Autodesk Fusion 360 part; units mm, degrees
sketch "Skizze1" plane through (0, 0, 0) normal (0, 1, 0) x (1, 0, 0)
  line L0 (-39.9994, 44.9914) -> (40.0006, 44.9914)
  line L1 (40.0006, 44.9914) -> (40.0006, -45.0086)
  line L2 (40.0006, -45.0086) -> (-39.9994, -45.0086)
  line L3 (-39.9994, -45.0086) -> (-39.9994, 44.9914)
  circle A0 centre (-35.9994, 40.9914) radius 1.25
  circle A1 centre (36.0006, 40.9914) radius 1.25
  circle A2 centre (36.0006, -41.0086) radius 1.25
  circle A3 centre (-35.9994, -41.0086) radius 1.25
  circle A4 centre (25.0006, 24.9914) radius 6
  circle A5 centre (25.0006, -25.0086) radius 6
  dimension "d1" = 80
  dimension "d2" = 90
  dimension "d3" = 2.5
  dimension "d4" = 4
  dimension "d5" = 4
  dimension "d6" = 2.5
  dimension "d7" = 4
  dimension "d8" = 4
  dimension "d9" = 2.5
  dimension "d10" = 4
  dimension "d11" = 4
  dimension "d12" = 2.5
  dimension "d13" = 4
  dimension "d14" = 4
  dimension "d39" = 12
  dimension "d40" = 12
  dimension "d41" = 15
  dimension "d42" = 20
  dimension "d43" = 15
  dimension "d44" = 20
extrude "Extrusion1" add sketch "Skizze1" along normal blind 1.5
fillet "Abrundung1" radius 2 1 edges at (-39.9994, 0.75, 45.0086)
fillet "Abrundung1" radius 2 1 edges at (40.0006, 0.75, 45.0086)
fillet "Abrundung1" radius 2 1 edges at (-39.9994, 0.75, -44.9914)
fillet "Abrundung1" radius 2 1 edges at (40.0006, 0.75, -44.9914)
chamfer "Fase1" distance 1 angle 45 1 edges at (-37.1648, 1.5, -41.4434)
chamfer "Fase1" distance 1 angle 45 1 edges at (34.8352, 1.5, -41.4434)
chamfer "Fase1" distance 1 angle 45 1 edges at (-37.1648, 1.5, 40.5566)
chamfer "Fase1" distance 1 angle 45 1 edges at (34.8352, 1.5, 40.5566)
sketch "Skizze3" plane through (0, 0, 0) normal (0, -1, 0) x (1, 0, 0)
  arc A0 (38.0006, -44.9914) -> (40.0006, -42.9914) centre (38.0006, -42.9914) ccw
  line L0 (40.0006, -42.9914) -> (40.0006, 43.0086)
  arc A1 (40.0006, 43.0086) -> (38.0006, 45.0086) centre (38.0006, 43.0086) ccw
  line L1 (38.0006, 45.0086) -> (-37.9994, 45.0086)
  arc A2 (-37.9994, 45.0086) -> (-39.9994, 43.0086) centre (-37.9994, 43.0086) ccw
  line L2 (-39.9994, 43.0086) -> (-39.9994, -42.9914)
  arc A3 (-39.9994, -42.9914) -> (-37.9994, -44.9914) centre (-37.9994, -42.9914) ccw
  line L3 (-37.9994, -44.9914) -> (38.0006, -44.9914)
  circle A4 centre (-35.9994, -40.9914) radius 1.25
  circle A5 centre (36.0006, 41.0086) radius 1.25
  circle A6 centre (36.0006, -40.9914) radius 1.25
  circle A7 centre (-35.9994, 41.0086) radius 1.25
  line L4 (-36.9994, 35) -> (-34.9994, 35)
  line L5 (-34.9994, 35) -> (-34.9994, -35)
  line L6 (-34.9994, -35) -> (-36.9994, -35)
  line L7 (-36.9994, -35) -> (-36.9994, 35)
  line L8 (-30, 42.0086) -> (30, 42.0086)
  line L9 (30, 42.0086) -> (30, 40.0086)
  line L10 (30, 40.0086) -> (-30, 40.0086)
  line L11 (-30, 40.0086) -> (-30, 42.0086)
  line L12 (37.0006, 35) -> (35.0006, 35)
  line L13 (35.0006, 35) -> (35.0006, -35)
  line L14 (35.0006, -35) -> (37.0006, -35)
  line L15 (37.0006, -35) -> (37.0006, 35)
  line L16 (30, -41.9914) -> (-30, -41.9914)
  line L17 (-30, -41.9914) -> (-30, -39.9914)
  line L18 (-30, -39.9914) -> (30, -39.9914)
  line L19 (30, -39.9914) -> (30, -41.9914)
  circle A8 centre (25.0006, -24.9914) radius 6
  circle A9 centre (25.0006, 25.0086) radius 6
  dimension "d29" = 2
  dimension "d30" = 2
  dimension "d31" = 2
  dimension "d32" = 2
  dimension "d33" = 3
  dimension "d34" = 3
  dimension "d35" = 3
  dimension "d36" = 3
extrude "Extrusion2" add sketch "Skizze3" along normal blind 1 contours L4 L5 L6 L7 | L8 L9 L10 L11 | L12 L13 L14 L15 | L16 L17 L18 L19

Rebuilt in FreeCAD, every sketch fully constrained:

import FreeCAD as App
import Part
import Sketcher

V = App.Vector


def edges_at(feature, points):
    """Names of the edges that pass closest to the given points."""
    edges = feature.Shape.Edges
    near = lambda p: min(range(len(edges)), key=lambda i: edges[i].distToShape(Part.Vertex(*p))[0])
    return sorted({f"Edge{near(p) + 1}" for p in points})


def add_polygon(sketch, points):
    """Adds a closed chain of lines whose ends are joined by coincident constraints."""
    first, n = sketch.GeometryCount, len(points)
    for a, b in zip(points, points[1:] + points[:1]):
        sketch.addGeometry(Part.LineSegment(App.Vector(*a, 0), App.Vector(*b, 0)), False)
    for i in range(n):
        sketch.addConstraint(Sketcher.Constraint("Coincident", first + i, 2, first + (i + 1) % n, 1))

doc = App.newDocument("Part")
body = doc.addObject("PartDesign::Body", "Body")

# Sketch on XZ plane
sketch1 = doc.addObject("Sketcher::SketchObject", "Sketch")
body.addObject(sketch1)
sketch1.AttachmentSupport = (doc.XZ_Plane, [""])
sketch1.MapMode = "FlatFace"
add_polygon(sketch1, [(40, -45), (-40, -45), (-40, 45), (40, 45)])  # lines 0-3
sketch1.addGeometry(Part.Circle(V(-36, 41, 0), V(0, 0, 1), 1.2), False)  # 4
sketch1.addGeometry(Part.Circle(V(36, 41, 0), V(0, 0, 1), 1.2), False)  # 5
sketch1.addGeometry(Part.Circle(V(25, 25, 0), V(0, 0, 1), 6), False)  # 6
sketch1.addGeometry(Part.Circle(V(-36, -41, 0), V(0, 0, 1), 1.2), False)  # 7
sketch1.addGeometry(Part.Circle(V(25, -25, 0), V(0, 0, 1), 6), False)  # 8
sketch1.addGeometry(Part.Circle(V(36, -41, 0), V(0, 0, 1), 1.2), False)  # 9
sketch1.addConstraint(Sketcher.Constraint("Horizontal", 0))
sketch1.addConstraint(Sketcher.Constraint("Vertical", 1))
sketch1.addConstraint(Sketcher.Constraint("Horizontal", 2))
sketch1.addConstraint(Sketcher.Constraint("Vertical", 3))
sketch1.addConstraint(Sketcher.Constraint("Equal", 4, 5))
sketch1.addConstraint(Sketcher.Constraint("Equal", 5, 7))
sketch1.addConstraint(Sketcher.Constraint("Equal", 6, 8))
sketch1.addConstraint(Sketcher.Constraint("Equal", 7, 9))
sketch1.addConstraint(Sketcher.Constraint("Horizontal", 4, 3, 5, 3))
sketch1.addConstraint(Sketcher.Constraint("Horizontal", 7, 3, 9, 3))
sketch1.addConstraint(Sketcher.Constraint("Vertical", 4, 3, 7, 3))
sketch1.addConstraint(Sketcher.Constraint("Vertical", 6, 3, 8, 3))
sketch1.addConstraint(Sketcher.Constraint("Vertical", 5, 3, 9, 3))
sketch1.addConstraint(Sketcher.Constraint("Diameter", 6, 12.0))
sketch1.addConstraint(Sketcher.Constraint("Diameter", 4, 2.5))
sketch1.addConstraint(Sketcher.Constraint("DistanceX", 0, 2, 0, 1, 80.0))
sketch1.addConstraint(Sketcher.Constraint("DistanceY", 1, 1, 1, 2, 90.0))
sketch1.addConstraint(Sketcher.Constraint("DistanceX", 0, 2, 7, 3, 4.0))
sketch1.addConstraint(Sketcher.Constraint("DistanceY", 0, 2, 7, 3, 4.0))
sketch1.addConstraint(Sketcher.Constraint("DistanceY", 0, 2, 8, 3, 20.0))
sketch1.addConstraint(Sketcher.Constraint("DistanceY", 4, 3, 1, 2, 4.0))
sketch1.addConstraint(Sketcher.Constraint("DistanceY", 6, 3, 1, 2, 20.0))
sketch1.addConstraint(Sketcher.Constraint("DistanceX", 5, 3, 2, 2, 4.0))
sketch1.addConstraint(Sketcher.Constraint("DistanceX", 6, 3, 2, 2, 15.0))
sketch1.addConstraint(Sketcher.Constraint("DistanceX", 4, 3, -1, 1, 35.9994))
sketch1.addConstraint(Sketcher.Constraint("DistanceY", -1, 1, 4, 3, 41.0086))
pad1 = doc.addObject("PartDesign::Pad", "Pad")
body.addObject(pad1)
pad1.Profile = sketch1
pad1.Length = 1.5
pad1.Reversed = True
doc.recompute()

fillet = doc.addObject("PartDesign::Fillet", "Fillet")
body.addObject(fillet)
fillet.Base = (pad1, edges_at(pad1, [(-39.999, 0.75, 45.009)]))
fillet.Radius = 2
doc.recompute()

fillet2 = doc.addObject("PartDesign::Fillet", "Fillet001")
body.addObject(fillet2)
fillet2.Base = (fillet, edges_at(fillet, [(40.001, 0.75, 45.009)]))
fillet2.Radius = 2
doc.recompute()

fillet3 = doc.addObject("PartDesign::Fillet", "Fillet002")
body.addObject(fillet3)
fillet3.Base = (fillet2, edges_at(fillet2, [(-39.999, 0.75, -44.991)]))
fillet3.Radius = 2
doc.recompute()

fillet4 = doc.addObject("PartDesign::Fillet", "Fillet003")
body.addObject(fillet4)
fillet4.Base = (fillet3, edges_at(fillet3, [(40.001, 0.75, -44.991)]))
fillet4.Radius = 2
doc.recompute()

chamfer = doc.addObject("PartDesign::Chamfer", "Chamfer")
body.addObject(chamfer)
chamfer.Base = (fillet4, edges_at(fillet4, [(-37.165, 1.5, -41.443)]))
chamfer.Size = 1
doc.recompute()

chamfer2 = doc.addObject("PartDesign::Chamfer", "Chamfer001")
body.addObject(chamfer2)
chamfer2.Base = (chamfer, edges_at(chamfer, [(34.835, 1.5, -41.443)]))
chamfer2.Size = 1
doc.recompute()

chamfer3 = doc.addObject("PartDesign::Chamfer", "Chamfer002")
body.addObject(chamfer3)
chamfer3.Base = (chamfer2, edges_at(chamfer2, [(-37.165, 1.5, 40.557)]))
chamfer3.Size = 1
doc.recompute()

chamfer4 = doc.addObject("PartDesign::Chamfer", "Chamfer003")
body.addObject(chamfer4)
chamfer4.Base = (chamfer3, edges_at(chamfer3, [(34.835, 1.5, 40.557)]))
chamfer4.Size = 1

# Sketch on XZ plane
sketch2 = doc.addObject("Sketcher::SketchObject", "Sketch001")
body.addObject(sketch2)
sketch2.AttachmentSupport = (doc.XZ_Plane, [""])
sketch2.MapMode = "FlatFace"
add_polygon(sketch2, [(-35, 35), (-37, 35), (-37, -35), (-35, -35)])  # lines 0-3
add_polygon(sketch2, [(30, 42), (-30, 42), (-30, 40), (30, 40)])  # lines 4-7
add_polygon(sketch2, [(37, -35), (37, 35), (35, 35), (35, -35)])  # lines 8-11
add_polygon(sketch2, [(-30, -42), (30, -42), (30, -40), (-30, -40)])  # lines 12-15
sketch2.addConstraint(Sketcher.Constraint("Horizontal", 0))
sketch2.addConstraint(Sketcher.Constraint("Vertical", 1))
sketch2.addConstraint(Sketcher.Constraint("Horizontal", 2))
sketch2.addConstraint(Sketcher.Constraint("Vertical", 3))
sketch2.addConstraint(Sketcher.Constraint("Horizontal", 4))
sketch2.addConstraint(Sketcher.Constraint("Vertical", 5))
sketch2.addConstraint(Sketcher.Constraint("Horizontal", 6))
sketch2.addConstraint(Sketcher.Constraint("Vertical", 7))
sketch2.addConstraint(Sketcher.Constraint("Vertical", 8))
sketch2.addConstraint(Sketcher.Constraint("Horizontal", 9))
sketch2.addConstraint(Sketcher.Constraint("Vertical", 10))
sketch2.addConstraint(Sketcher.Constraint("Horizontal", 11))
sketch2.addConstraint(Sketcher.Constraint("Horizontal", 12))
sketch2.addConstraint(Sketcher.Constraint("Vertical", 13))
sketch2.addConstraint(Sketcher.Constraint("Horizontal", 14))
sketch2.addConstraint(Sketcher.Constraint("Vertical", 15))
sketch2.addConstraint(Sketcher.Constraint("Horizontal", 3, 2, 8, 2))
sketch2.addConstraint(Sketcher.Constraint("Horizontal", 2, 2, 10, 2))
sketch2.addConstraint(Sketcher.Constraint("Vertical", 7, 2, 12, 2))
sketch2.addConstraint(Sketcher.Constraint("Vertical", 5, 2, 14, 2))
sketch2.addConstraint(Sketcher.Constraint("Equal", 2, 9))
sketch2.addConstraint(Sketcher.Constraint("Equal", 11, 5))
sketch2.addConstraint(Sketcher.Constraint("Equal", 7, 13))
sketch2.addConstraint(Sketcher.Constraint("DistanceX", 0, 2, 0, 1, 2.0))
sketch2.addConstraint(Sketcher.Constraint("DistanceX", 4, 2, 4, 1, 60.0))
sketch2.addConstraint(Sketcher.Constraint("DistanceY", 1, 2, 1, 1, 70.0))
sketch2.addConstraint(Sketcher.Constraint("DistanceY", -1, 1, 0, 2, 35.0))
sketch2.addConstraint(Sketcher.Constraint("DistanceX", 4, 2, -1, 1, 30.0))
sketch2.addConstraint(Sketcher.Constraint("DistanceX", 3, 2, 8, 2, 72.0))
sketch2.addConstraint(Sketcher.Constraint("DistanceX", 0, 2, -1, 1, 36.9994))
sketch2.addConstraint(Sketcher.Constraint("DistanceY", -1, 1, 4, 2, 42.0086))
sketch2.addConstraint(Sketcher.Constraint("DistanceY", 12, 2, -1, 1, 41.9914))
pad2 = doc.addObject("PartDesign::Pad", "Pad001")
body.addObject(pad2)
pad2.Profile = sketch2
pad2.Length = 1

doc.recompute()
